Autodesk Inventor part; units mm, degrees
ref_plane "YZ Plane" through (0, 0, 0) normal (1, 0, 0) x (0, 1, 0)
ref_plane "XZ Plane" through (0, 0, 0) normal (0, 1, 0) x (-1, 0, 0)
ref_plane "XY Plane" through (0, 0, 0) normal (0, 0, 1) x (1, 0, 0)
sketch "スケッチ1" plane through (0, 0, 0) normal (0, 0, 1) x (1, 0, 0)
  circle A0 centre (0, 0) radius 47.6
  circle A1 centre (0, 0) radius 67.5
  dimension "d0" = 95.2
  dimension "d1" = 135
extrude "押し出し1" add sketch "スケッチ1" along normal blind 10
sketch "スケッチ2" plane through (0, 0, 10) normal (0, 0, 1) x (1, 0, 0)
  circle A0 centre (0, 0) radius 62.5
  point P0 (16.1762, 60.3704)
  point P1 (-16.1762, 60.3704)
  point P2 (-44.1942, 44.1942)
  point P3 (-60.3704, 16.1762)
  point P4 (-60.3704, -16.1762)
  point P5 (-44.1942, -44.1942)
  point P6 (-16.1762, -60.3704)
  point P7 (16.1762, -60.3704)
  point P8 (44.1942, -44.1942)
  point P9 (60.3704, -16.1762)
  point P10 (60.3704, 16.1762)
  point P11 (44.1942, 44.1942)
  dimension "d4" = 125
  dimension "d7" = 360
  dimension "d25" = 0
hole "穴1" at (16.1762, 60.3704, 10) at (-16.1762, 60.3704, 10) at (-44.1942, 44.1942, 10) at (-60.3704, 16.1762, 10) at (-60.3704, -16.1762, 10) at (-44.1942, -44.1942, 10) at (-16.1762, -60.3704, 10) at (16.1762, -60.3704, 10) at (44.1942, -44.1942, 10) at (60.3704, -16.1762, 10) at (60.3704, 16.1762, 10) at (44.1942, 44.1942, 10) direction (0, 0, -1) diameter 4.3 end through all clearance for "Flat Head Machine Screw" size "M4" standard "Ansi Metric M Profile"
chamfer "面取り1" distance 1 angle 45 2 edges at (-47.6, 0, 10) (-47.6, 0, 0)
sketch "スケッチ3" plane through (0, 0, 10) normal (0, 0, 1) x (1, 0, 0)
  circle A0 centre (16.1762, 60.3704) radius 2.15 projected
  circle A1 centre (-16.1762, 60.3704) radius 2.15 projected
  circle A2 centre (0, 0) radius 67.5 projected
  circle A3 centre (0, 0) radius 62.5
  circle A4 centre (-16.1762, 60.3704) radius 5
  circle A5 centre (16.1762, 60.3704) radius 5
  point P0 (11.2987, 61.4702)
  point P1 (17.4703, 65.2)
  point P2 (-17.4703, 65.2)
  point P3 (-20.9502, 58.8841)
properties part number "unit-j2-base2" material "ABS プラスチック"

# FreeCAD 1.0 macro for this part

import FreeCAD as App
import Part
import Sketcher


def edges_at(feature, points):
    """Names of the edges that pass closest to the given points."""
    edges = feature.Shape.Edges
    near = lambda p: min(range(len(edges)), key=lambda i: edges[i].distToShape(Part.Vertex(*p))[0])
    return sorted({f"Edge{near(p) + 1}" for p in points})

doc = App.newDocument("Part")
body = doc.addObject("PartDesign::Body", "Body")

# Sketch on XY plane
sketch1 = body.newObject("Sketcher::SketchObject", "Sketch")
sketch1.AttachmentSupport = (doc.getObject("XY_Plane"), [""])
sketch1.MapMode = "FlatFace"
sketch1.addGeometry(Part.Circle(App.Vector(0, 0, 0), App.Vector(0, 0, 1), 67.5), False)
sketch1.addGeometry(Part.Circle(App.Vector(0, 0, 0), App.Vector(0, 0, 1), 47.6), False)
sketch1.addConstraint(Sketcher.Constraint("Coincident", 0, 3, -1, 1))
sketch1.addConstraint(Sketcher.Constraint("Coincident", 1, 3, -1, 1))
sketch1.addConstraint(Sketcher.Constraint("Diameter", 0, 135.0))
sketch1.addConstraint(Sketcher.Constraint("Diameter", 1, 95.2))
pad1 = body.newObject("PartDesign::Pad", "Pad")
pad1.Profile = sketch1
pad1.Length = 10

# Sketch on XY plane
sketch2 = body.newObject("Sketcher::SketchObject", "Sketch001")
sketch2.AttachmentSupport = (doc.getObject("XY_Plane"), [""])
sketch2.MapMode = "FlatFace"
sketch2.AttachmentOffset = App.Placement(App.Vector(0, 0, 10), App.Rotation())
sketch2.addGeometry(Part.Circle(App.Vector(16.1762, 60.3704, 0), App.Vector(0, 0, 1), 2.15), False)
sketch2.addGeometry(Part.Circle(App.Vector(-16.1762, 60.3704, 0), App.Vector(0, 0, 1), 2.15), False)
sketch2.addGeometry(Part.Circle(App.Vector(-44.1942, 44.1942, 0), App.Vector(0, 0, 1), 2.15), False)
sketch2.addGeometry(Part.Circle(App.Vector(-60.3704, 16.1762, 0), App.Vector(0, 0, 1), 2.15), False)
sketch2.addGeometry(Part.Circle(App.Vector(-60.3704, -16.1762, 0), App.Vector(0, 0, 1), 2.15), False)
sketch2.addGeometry(Part.Circle(App.Vector(-44.1942, -44.1942, 0), App.Vector(0, 0, 1), 2.15), False)
sketch2.addGeometry(Part.Circle(App.Vector(-16.1762, -60.3704, 0), App.Vector(0, 0, 1), 2.15), False)
sketch2.addGeometry(Part.Circle(App.Vector(16.1762, -60.3704, 0), App.Vector(0, 0, 1), 2.15), False)
sketch2.addGeometry(Part.Circle(App.Vector(44.1942, -44.1942, 0), App.Vector(0, 0, 1), 2.15), False)
sketch2.addGeometry(Part.Circle(App.Vector(60.3704, -16.1762, 0), App.Vector(0, 0, 1), 2.15), False)
sketch2.addGeometry(Part.Circle(App.Vector(60.3704, 16.1762, 0), App.Vector(0, 0, 1), 2.15), False)
sketch2.addGeometry(Part.Circle(App.Vector(44.1942, 44.1942, 0), App.Vector(0, 0, 1), 2.15), False)
sketch2.addConstraint(Sketcher.Constraint("Equal", 0, 1))
sketch2.addConstraint(Sketcher.Constraint("Equal", 1, 2))
sketch2.addConstraint(Sketcher.Constraint("Equal", 2, 3))
sketch2.addConstraint(Sketcher.Constraint("Equal", 3, 4))
sketch2.addConstraint(Sketcher.Constraint("Equal", 4, 5))
sketch2.addConstraint(Sketcher.Constraint("Equal", 5, 6))
sketch2.addConstraint(Sketcher.Constraint("Equal", 6, 7))
sketch2.addConstraint(Sketcher.Constraint("Equal", 7, 8))
sketch2.addConstraint(Sketcher.Constraint("Equal", 8, 9))
sketch2.addConstraint(Sketcher.Constraint("Equal", 9, 10))
sketch2.addConstraint(Sketcher.Constraint("Equal", 10, 11))
sketch2.addConstraint(Sketcher.Constraint("Symmetric", 0, 3, 6, 3, -1, 1))
sketch2.addConstraint(Sketcher.Constraint("Symmetric", 1, 3, 7, 3, -1, 1))
sketch2.addConstraint(Sketcher.Constraint("Symmetric", 2, 3, 8, 3, -1, 1))
sketch2.addConstraint(Sketcher.Constraint("Symmetric", 3, 3, 9, 3, -1, 1))
sketch2.addConstraint(Sketcher.Constraint("Symmetric", 4, 3, 10, 3, -1, 1))
sketch2.addConstraint(Sketcher.Constraint("Symmetric", 5, 3, 11, 3, -1, 1))
sketch2.addConstraint(Sketcher.Constraint("Symmetric", 0, 3, 1, 3, -2))
sketch2.addConstraint(Sketcher.Constraint("Symmetric", 5, 3, 8, 3, -2))
sketch2.addConstraint(Sketcher.Constraint("Symmetric", 4, 3, 9, 3, -2))
sketch2.addConstraint(Sketcher.Constraint("Diameter", 0, 4.3))
sketch2.addConstraint(Sketcher.Constraint("DistanceX", 2, 3, 1, 3, 28.018))
sketch2.addConstraint(Sketcher.Constraint("DistanceY", 3, 3, 2, 3, 28.018))
sketch2.addConstraint(Sketcher.Constraint("DistanceX", -1, 1, 0, 3, 16.1762))
sketch2.addConstraint(Sketcher.Constraint("DistanceY", -1, 1, 0, 3, 60.3704))
sketch2.addConstraint(Sketcher.Constraint("DistanceY", -1, 1, 2, 3, 44.1942))
sketch2.addConstraint(Sketcher.Constraint("DistanceX", 3, 3, -1, 1, 60.3704))
doc.recompute()
hole = body.newObject("PartDesign::Hole", "Hole")
hole.Profile = sketch2
hole.ThreadType = "None"
hole.Diameter = 4.3
hole.DepthType = "ThroughAll"
doc.recompute()

chamfer = body.newObject("PartDesign::Chamfer", "Chamfer")
chamfer.Base = (hole, edges_at(hole, [(-47.6, 0, 10), (-47.6, 0, 0)]))
chamfer.Size = 1

doc.recompute()
